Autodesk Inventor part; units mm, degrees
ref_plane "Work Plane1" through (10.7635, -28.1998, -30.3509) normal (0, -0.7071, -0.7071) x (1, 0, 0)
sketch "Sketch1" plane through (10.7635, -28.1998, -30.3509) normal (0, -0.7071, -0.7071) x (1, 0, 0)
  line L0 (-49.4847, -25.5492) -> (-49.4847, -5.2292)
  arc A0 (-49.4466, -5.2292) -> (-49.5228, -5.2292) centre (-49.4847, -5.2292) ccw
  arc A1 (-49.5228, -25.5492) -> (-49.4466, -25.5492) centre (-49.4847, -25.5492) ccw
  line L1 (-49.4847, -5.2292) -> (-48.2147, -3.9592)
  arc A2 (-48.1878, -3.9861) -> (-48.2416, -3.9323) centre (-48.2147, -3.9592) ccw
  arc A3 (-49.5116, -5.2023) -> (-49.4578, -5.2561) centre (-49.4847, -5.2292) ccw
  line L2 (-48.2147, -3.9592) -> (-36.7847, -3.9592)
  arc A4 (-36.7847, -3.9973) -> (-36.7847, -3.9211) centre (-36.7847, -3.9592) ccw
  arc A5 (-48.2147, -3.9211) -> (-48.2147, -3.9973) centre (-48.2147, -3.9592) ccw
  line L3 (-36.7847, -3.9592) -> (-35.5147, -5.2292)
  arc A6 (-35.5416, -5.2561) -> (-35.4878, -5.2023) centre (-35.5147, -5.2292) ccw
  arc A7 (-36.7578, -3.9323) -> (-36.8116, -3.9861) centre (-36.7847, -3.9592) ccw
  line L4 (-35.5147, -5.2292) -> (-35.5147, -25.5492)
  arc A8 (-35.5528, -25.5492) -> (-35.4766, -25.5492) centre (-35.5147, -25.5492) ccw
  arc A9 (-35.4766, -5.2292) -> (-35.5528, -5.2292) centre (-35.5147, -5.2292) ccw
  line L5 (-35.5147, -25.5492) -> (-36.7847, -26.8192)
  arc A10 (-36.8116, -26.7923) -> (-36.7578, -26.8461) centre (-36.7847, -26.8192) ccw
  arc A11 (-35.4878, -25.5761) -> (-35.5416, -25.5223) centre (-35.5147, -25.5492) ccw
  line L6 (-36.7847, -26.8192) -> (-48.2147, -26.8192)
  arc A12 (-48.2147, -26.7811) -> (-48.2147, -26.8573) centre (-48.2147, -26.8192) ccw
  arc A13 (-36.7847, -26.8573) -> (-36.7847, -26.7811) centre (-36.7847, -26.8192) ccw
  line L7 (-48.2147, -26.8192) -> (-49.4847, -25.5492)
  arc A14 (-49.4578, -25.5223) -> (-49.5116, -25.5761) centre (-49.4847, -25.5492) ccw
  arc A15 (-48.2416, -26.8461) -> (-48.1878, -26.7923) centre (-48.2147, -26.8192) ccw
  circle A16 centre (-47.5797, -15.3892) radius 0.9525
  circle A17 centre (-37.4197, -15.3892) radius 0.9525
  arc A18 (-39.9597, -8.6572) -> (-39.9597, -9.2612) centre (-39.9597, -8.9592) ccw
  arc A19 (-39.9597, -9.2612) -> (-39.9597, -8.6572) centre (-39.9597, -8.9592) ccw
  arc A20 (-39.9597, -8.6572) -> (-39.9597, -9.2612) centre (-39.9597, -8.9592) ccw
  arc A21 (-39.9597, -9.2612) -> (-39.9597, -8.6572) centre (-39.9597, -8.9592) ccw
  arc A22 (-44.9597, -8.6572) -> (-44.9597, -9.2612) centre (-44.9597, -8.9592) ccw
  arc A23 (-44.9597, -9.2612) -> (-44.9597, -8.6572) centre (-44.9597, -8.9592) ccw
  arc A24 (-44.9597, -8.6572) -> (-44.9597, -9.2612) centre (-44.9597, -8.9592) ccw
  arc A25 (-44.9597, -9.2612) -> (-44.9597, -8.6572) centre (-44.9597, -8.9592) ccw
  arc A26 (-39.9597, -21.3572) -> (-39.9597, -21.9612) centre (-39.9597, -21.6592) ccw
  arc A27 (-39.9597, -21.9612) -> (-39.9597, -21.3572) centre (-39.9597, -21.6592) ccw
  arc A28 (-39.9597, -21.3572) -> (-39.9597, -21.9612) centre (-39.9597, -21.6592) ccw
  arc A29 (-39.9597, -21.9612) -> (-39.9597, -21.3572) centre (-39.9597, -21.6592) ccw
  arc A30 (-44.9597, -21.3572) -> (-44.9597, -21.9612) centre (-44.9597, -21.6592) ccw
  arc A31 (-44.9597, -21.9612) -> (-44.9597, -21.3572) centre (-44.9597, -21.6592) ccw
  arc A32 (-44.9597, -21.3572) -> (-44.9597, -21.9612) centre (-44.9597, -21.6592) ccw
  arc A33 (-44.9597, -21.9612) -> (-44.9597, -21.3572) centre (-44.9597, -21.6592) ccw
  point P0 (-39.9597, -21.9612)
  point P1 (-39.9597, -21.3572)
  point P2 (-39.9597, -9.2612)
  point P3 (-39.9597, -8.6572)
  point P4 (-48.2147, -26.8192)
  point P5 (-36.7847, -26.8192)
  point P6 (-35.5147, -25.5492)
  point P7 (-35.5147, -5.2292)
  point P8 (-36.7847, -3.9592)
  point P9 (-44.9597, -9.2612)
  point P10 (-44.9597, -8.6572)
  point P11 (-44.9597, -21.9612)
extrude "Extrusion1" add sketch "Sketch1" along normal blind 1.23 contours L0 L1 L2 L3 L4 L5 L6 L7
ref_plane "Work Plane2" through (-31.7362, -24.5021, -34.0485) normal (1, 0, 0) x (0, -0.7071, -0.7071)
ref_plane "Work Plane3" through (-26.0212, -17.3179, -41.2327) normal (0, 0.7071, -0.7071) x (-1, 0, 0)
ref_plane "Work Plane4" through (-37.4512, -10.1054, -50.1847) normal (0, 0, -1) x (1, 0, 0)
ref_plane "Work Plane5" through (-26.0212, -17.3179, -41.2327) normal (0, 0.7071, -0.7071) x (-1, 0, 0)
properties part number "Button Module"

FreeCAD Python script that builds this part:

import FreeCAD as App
import Part
import Sketcher
from FreeCAD import Vector
Q = App.Units.Quantity

doc = App.newDocument("Part")
params = doc.addObject("Spreadsheet::Sheet", "Params")
for row, (alias, value) in enumerate([
    ("sketch1_diameter", "0.075 in"),
    ("sketch1_height", "0.8 in"),
    ("sketch1_width", "0.45 in"),
    ("pad1_length", "1.23 mm"),
], start=1):
    params.set(f"A{row}", alias)
    params.set(f"B{row}", "=" + value)
    params.setAlias(f"B{row}", alias)

body = doc.addObject("PartDesign::Body", "Body")

# Sketch on an angled plane
sketch1 = body.newObject("Sketcher::SketchObject", "Sketch")
sketch1.Placement = App.Placement(Vector(10.7635, -28.1998, -30.3509), App.Rotation(Vector(1, 0, 0), Vector(0, -0.707106781, 0.707106781), Vector(0, -0.707106781, -0.707106781), "ZXY"))
sketch1.addGeometry(Part.LineSegment(Vector(-49.48, -5.23, 0), Vector(-49.48, -25.55, 0)), False)
sketch1.addGeometry(Part.LineSegment(Vector(-49.48, -25.55, 0), Vector(-48.21, -26.82, 0)), False)
sketch1.addGeometry(Part.LineSegment(Vector(-48.21, -26.82, 0), Vector(-36.78, -26.82, 0)), False)
sketch1.addGeometry(Part.LineSegment(Vector(-36.78, -26.82, 0), Vector(-35.51, -25.55, 0)), False)
sketch1.addGeometry(Part.LineSegment(Vector(-35.51, -25.55, 0), Vector(-35.51, -5.23, 0)), False)
sketch1.addGeometry(Part.LineSegment(Vector(-35.51, -5.23, 0), Vector(-36.78, -3.96, 0)), False)
sketch1.addGeometry(Part.LineSegment(Vector(-36.78, -3.96, 0), Vector(-48.21, -3.96, 0)), False)
sketch1.addGeometry(Part.LineSegment(Vector(-48.21, -3.96, 0), Vector(-49.48, -5.23, 0)), False)
sketch1.addGeometry(Part.Circle(Vector(-44.96, -21.66, 0), Vector(0, 0, 1), 0.3), False)
sketch1.addGeometry(Part.Circle(Vector(-47.58, -15.39, 0), Vector(0, 0, 1), 0.95), False)
sketch1.addGeometry(Part.Circle(Vector(-39.96, -21.66, 0), Vector(0, 0, 1), 0.3), False)
sketch1.addGeometry(Part.Circle(Vector(-37.42, -15.39, 0), Vector(0, 0, 1), 0.95), False)
sketch1.addGeometry(Part.Circle(Vector(-44.96, -8.96, 0), Vector(0, 0, 1), 0.3), False)
sketch1.addGeometry(Part.Circle(Vector(-39.96, -8.96, 0), Vector(0, 0, 1), 0.3), False)
sketch1.addConstraint(Sketcher.Constraint("Coincident", 0, 2, 1, 1))
sketch1.addConstraint(Sketcher.Constraint("Coincident", 1, 2, 2, 1))
sketch1.addConstraint(Sketcher.Constraint("Coincident", 2, 2, 3, 1))
sketch1.addConstraint(Sketcher.Constraint("Coincident", 3, 2, 4, 1))
sketch1.addConstraint(Sketcher.Constraint("Coincident", 4, 2, 5, 1))
sketch1.addConstraint(Sketcher.Constraint("Coincident", 5, 2, 6, 1))
sketch1.addConstraint(Sketcher.Constraint("Coincident", 6, 2, 7, 1))
sketch1.addConstraint(Sketcher.Constraint("Coincident", 7, 2, 0, 1))
sketch1.addConstraint(Sketcher.Constraint("Vertical", 0))
sketch1.addConstraint(Sketcher.Constraint("Horizontal", 2))
sketch1.addConstraint(Sketcher.Constraint("Vertical", 4))
sketch1.addConstraint(Sketcher.Constraint("Horizontal", 6))
sketch1.addConstraint(Sketcher.Constraint("Equal", 8, 10))
sketch1.addConstraint(Sketcher.Constraint("Equal", 9, 11))
sketch1.addConstraint(Sketcher.Constraint("Equal", 10, 12))
sketch1.addConstraint(Sketcher.Constraint("Equal", 12, 13))
sketch1.addConstraint(Sketcher.Constraint("Perpendicular", 1, 3))
sketch1.addConstraint(Sketcher.Constraint("Perpendicular", 3, 5))
sketch1.addConstraint(Sketcher.Constraint("Perpendicular", 5, 7))
sketch1.addConstraint(Sketcher.Constraint("Horizontal", 8, 3, 10, 3))
sketch1.addConstraint(Sketcher.Constraint("Horizontal", 9, 3, 11, 3))
sketch1.addConstraint(Sketcher.Constraint("Horizontal", 12, 3, 13, 3))
sketch1.addConstraint(Sketcher.Constraint("Horizontal", 0, 2, 3, 2))
sketch1.addConstraint(Sketcher.Constraint("Horizontal", 4, 2, 7, 2))
sketch1.addConstraint(Sketcher.Constraint("Vertical", 8, 3, 12, 3))
sketch1.addConstraint(Sketcher.Constraint("Vertical", 10, 3, 13, 3))
sketch1.addConstraint(Sketcher.Constraint("Vertical", 2, 2, 5, 2))
sketch1.addConstraint(Sketcher.Constraint("Vertical", 1, 2, 6, 2))
sketch1.addConstraint(Sketcher.Constraint("Diameter", 9, Q("0.075 in")))
sketch1.addConstraint(Sketcher.Constraint("DistanceY", 0, 2, 0, 1, Q("0.8 in")))
sketch1.addConstraint(Sketcher.Constraint("DistanceX", 2, 1, 2, 2, Q("0.45 in")))
sketch1.addConstraint(Sketcher.Constraint("DistanceX", 9, 3, 10, 3, Q("0.3 in")))
sketch1.addConstraint(Sketcher.Constraint("DistanceX", 10, 3, 11, 3, Q("0.1 in")))
sketch1.addConstraint(Sketcher.Constraint("DistanceY", 8, 3, 12, 3, Q("0.5 in")))
sketch1.addConstraint(Sketcher.Constraint("DistanceY", 0, 2, 9, 3, Q("0.4 in")))
sketch1.addConstraint(Sketcher.Constraint("DistanceX", 0, 2, 2, 2, Q("0.5 in")))
sketch1.addConstraint(Sketcher.Constraint("Diameter", 8, Q("0.604 mm")))
sketch1.addConstraint(Sketcher.Constraint("DistanceX", 0, 2, 10, 3, Q("0.375 in")))
sketch1.addConstraint(Sketcher.Constraint("DistanceX", 8, 3, -1, 1, Q("44.9597 mm")))
sketch1.addConstraint(Sketcher.Constraint("DistanceY", 8, 3, -1, 1, Q("21.6592 mm")))
sketch1.addConstraint(Sketcher.Constraint("DistanceX", 9, 3, -1, 1, Q("47.5797 mm")))
sketch1.addConstraint(Sketcher.Constraint("DistanceY", 9, 3, -1, 1, Q("15.3892 mm")))
sketch1.setExpression("Constraints[28]", "Params.sketch1_diameter")
sketch1.setExpression("Constraints[29]", "Params.sketch1_height")
sketch1.setExpression("Constraints[30]", "Params.sketch1_width")
pad1 = body.newObject("PartDesign::Pad", "Pad")
pad1.Profile = sketch1
pad1.setExpression("Length", "Params.pad1_length")

doc.recompute()
